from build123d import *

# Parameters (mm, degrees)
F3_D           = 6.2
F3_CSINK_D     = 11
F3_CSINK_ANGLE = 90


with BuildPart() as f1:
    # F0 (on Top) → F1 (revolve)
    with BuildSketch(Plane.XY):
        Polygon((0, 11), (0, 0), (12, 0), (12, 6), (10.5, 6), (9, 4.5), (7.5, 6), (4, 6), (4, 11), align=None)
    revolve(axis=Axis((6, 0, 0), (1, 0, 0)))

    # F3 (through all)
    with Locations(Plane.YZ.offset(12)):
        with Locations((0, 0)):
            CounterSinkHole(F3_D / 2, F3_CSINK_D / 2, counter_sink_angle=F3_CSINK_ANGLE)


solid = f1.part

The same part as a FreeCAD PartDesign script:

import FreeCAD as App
import Part
import Sketcher

V = App.Vector

doc = App.newDocument("Part")
body = doc.addObject("PartDesign::Body", "Body")

sketch1 = body.newObject("Sketcher::SketchObject", "Sketch")
sketch1.AttachmentSupport = (doc.getObject("XY_Plane"), [""])
sketch1.MapMode = "FlatFace"
sketch1.addGeometry(Part.LineSegment(V(0, 11, 0), V(0, 0, 0)), False)
sketch1.addGeometry(Part.LineSegment(V(0, 0, 0), V(12, 0, 0)), False)
sketch1.addGeometry(Part.LineSegment(V(12, 0, 0), V(12, 6, 0)), False)
sketch1.addGeometry(Part.LineSegment(V(12, 6, 0), V(10.5, 6, 0)), False)
sketch1.addGeometry(Part.LineSegment(V(10.5, 6, 0), V(9, 4.5, 0)), False)
sketch1.addGeometry(Part.LineSegment(V(9, 4.5, 0), V(7.5, 6, 0)), False)
sketch1.addGeometry(Part.LineSegment(V(7.5, 6, 0), V(4, 6, 0)), False)
sketch1.addGeometry(Part.LineSegment(V(4, 6, 0), V(4, 11, 0)), False)
sketch1.addGeometry(Part.LineSegment(V(4, 11, 0), V(0, 11, 0)), False)
sketch1.addConstraint(Sketcher.Constraint("Coincident", 0, 2, 1, 1))
sketch1.addConstraint(Sketcher.Constraint("Coincident", 1, 2, 2, 1))
sketch1.addConstraint(Sketcher.Constraint("Coincident", 2, 2, 3, 1))
sketch1.addConstraint(Sketcher.Constraint("Coincident", 3, 2, 4, 1))
sketch1.addConstraint(Sketcher.Constraint("Coincident", 4, 2, 5, 1))
sketch1.addConstraint(Sketcher.Constraint("Coincident", 5, 2, 6, 1))
sketch1.addConstraint(Sketcher.Constraint("Coincident", 6, 2, 7, 1))
sketch1.addConstraint(Sketcher.Constraint("Coincident", 7, 2, 8, 1))
sketch1.addConstraint(Sketcher.Constraint("Coincident", 8, 2, 0, 1))
sketch1.addConstraint(Sketcher.Constraint("Vertical", 0))
sketch1.addConstraint(Sketcher.Constraint("Horizontal", 1))
sketch1.addConstraint(Sketcher.Constraint("Vertical", 2))
sketch1.addConstraint(Sketcher.Constraint("Horizontal", 3))
sketch1.addConstraint(Sketcher.Constraint("Horizontal", 6))
sketch1.addConstraint(Sketcher.Constraint("Vertical", 7))
sketch1.addConstraint(Sketcher.Constraint("Horizontal", 8))
sketch1.addConstraint(Sketcher.Constraint("Coincident", 0, 2, -1, 1))
sketch1.addConstraint(Sketcher.Constraint("Perpendicular", 4, 5))
sketch1.addConstraint(Sketcher.Constraint("Horizontal", 3, 2, 5, 2))
sketch1.addConstraint(Sketcher.Constraint("Equal", 4, 5))
sketch1.addConstraint(Sketcher.Constraint("DistanceX", 1, 1, 1, 2, 12.0))
sketch1.addConstraint(Sketcher.Constraint("DistanceX", 8, 2, 8, 1, 4.0))
sketch1.addConstraint(Sketcher.Constraint("DistanceY", 0, 2, 0, 1, 11.0))
sketch1.addConstraint(Sketcher.Constraint("DistanceY", 2, 1, 2, 2, 6.0))
sketch1.addConstraint(Sketcher.Constraint("DistanceX", 3, 2, 3, 1, 1.5))
sketch1.addConstraint(Sketcher.Constraint("DistanceX", 6, 2, 6, 1, 3.5))
revolution = body.newObject("PartDesign::Revolution", "Revolution")
revolution.Profile = sketch1
revolution.ReferenceAxis = (sketch1, ["H_Axis"])
revolution.Angle = 360

sketch2 = body.newObject("Sketcher::SketchObject", "Sketch001")
sketch2.AttachmentSupport = (doc.getObject("YZ_Plane"), [""])
sketch2.MapMode = "FlatFace"
sketch2.AttachmentOffset = App.Placement(V(0, 0, 12), App.Rotation())
sketch2.addGeometry(Part.Circle(V(0, 0, 0), V(0, 0, 1), 3.1), False)
sketch2.addConstraint(Sketcher.Constraint("Coincident", 0, 3, -1, 1))
sketch2.addConstraint(Sketcher.Constraint("Diameter", 0, 6.2))
doc.recompute()
hole = body.newObject("PartDesign::Hole", "Hole")
hole.Profile = sketch2
hole.ThreadType = "None"
hole.Diameter = 6.2
hole.DepthType = "ThroughAll"
hole.HoleCutType = "Countersink"
hole.HoleCutDiameter = 11
hole.HoleCutCountersinkAngle = 90

doc.recompute()
